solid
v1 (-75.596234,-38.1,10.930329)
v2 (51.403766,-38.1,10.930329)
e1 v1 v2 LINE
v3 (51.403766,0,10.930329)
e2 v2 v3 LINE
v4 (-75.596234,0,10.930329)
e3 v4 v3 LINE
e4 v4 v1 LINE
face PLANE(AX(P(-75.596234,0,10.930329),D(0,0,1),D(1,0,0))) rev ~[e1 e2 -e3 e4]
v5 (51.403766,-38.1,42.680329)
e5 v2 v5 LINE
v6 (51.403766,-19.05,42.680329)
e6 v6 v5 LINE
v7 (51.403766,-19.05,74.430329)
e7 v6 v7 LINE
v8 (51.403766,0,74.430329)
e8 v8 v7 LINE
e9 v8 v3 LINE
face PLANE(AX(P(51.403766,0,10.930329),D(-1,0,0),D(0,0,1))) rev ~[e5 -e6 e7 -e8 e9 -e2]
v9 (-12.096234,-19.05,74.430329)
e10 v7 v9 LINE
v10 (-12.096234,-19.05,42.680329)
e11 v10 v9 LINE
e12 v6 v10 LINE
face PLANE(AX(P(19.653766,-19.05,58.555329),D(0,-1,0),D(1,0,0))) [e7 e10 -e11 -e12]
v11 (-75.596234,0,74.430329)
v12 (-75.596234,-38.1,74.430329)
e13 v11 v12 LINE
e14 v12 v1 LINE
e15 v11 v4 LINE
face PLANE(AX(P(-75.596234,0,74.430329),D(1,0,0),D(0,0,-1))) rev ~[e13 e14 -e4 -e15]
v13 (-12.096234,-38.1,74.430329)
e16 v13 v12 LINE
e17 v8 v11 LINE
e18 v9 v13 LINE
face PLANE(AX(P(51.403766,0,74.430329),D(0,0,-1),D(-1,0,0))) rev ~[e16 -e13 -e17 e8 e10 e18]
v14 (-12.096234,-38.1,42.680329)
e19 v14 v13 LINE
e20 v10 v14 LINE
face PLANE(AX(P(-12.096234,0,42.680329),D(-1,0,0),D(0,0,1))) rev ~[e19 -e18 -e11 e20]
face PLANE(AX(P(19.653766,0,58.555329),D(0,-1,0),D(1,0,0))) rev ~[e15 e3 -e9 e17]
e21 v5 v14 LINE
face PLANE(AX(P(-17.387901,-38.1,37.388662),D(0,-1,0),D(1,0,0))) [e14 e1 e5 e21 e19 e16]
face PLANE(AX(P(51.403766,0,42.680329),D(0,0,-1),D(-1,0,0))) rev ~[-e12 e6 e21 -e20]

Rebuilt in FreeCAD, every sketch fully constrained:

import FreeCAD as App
import Part
import Sketcher

V = App.Vector
Q = App.Units.Quantity

doc = App.newDocument("Part")
body = doc.addObject("PartDesign::Body", "Body")

# Sketch on XZ plane
sketch1 = doc.addObject("Sketcher::SketchObject", "Sketch")
body.addObject(sketch1)
sketch1.AttachmentSupport = (doc.XZ_Plane, [""])
sketch1.MapMode = "FlatFace"
sketch1.addGeometry([
    Part.LineSegment(V(-12, 74, 0), V(-76, 74, 0)),  # 0
    Part.LineSegment(V(-76, 74, 0), V(-76, 11, 0)),  # 1
    Part.LineSegment(V(-76, 11, 0), V(51, 11, 0)),  # 2
    Part.LineSegment(V(51, 11, 0), V(51, 43, 0)),  # 3
    Part.LineSegment(V(51, 43, 0), V(-12, 43, 0)),  # 4
    Part.LineSegment(V(-12, 43, 0), V(-12, 74, 0)),  # 5
], False)
sketch1.addConstraint([
    Sketcher.Constraint("Coincident", 0, 2, 1, 1),
    Sketcher.Constraint("Coincident", 1, 2, 2, 1),
    Sketcher.Constraint("Coincident", 2, 2, 3, 1),
    Sketcher.Constraint("Coincident", 3, 2, 4, 1),
    Sketcher.Constraint("Coincident", 4, 2, 5, 1),
    Sketcher.Constraint("Coincident", 5, 2, 0, 1),
    Sketcher.Constraint("Horizontal", 0),
    Sketcher.Constraint("Vertical", 1),
    Sketcher.Constraint("Horizontal", 2),
    Sketcher.Constraint("Vertical", 3),
    Sketcher.Constraint("Horizontal", 4),
    Sketcher.Constraint("Vertical", 5),
    Sketcher.Constraint("Equal", 0, 4),
    Sketcher.Constraint("Equal", 4, 1),
    Sketcher.Constraint("Equal", 3, 5),
    Sketcher.Constraint("DistanceX", 2, 1, 2, 2, Q("5 in")),
    Sketcher.Constraint("DistanceY", -1, 1, 0, 2, 74.430329),
    Sketcher.Constraint("DistanceX", 0, 2, -1, 1, 75.596234),
])
pad1 = doc.addObject("PartDesign::Pad", "Pad")
body.addObject(pad1)
pad1.Profile = sketch1
pad1.Length = Q("1.5 in")

# Sketch on XZ plane
sketch2 = doc.addObject("Sketcher::SketchObject", "Sketch001")
body.addObject(sketch2)
sketch2.AttachmentSupport = (doc.XZ_Plane, [""])
sketch2.MapMode = "FlatFace"
sketch2.addGeometry([
    Part.LineSegment(V(51, 74, 0), V(-76, 74, 0)),
    Part.LineSegment(V(-76, 74, 0), V(-76, 11, 0)),
    Part.LineSegment(V(-76, 11, 0), V(51, 11, 0)),
    Part.LineSegment(V(51, 11, 0), V(51, 74, 0)),
], False)
sketch2.addConstraint([
    Sketcher.Constraint("Coincident", 0, 2, 1, 1),
    Sketcher.Constraint("Coincident", 1, 2, 2, 1),
    Sketcher.Constraint("Coincident", 2, 2, 3, 1),
    Sketcher.Constraint("Coincident", 3, 2, 0, 1),
    Sketcher.Constraint("Horizontal", 0),
    Sketcher.Constraint("Vertical", 1),
    Sketcher.Constraint("Horizontal", 2),
    Sketcher.Constraint("Vertical", 3),
    Sketcher.Constraint("DistanceX", 0, 2, 0, 1, Q("5 in")),
    Sketcher.Constraint("DistanceY", 1, 2, 1, 1, Q("2.5 in")),
    Sketcher.Constraint("DistanceY", -1, 1, 0, 2, 74.430329),
    Sketcher.Constraint("DistanceX", 0, 2, -1, 1, 75.596234),
])
pad2 = doc.addObject("PartDesign::Pad", "Pad001")
body.addObject(pad2)
pad2.Profile = sketch2
pad2.Length = Q("0.75 in")

doc.recompute()
